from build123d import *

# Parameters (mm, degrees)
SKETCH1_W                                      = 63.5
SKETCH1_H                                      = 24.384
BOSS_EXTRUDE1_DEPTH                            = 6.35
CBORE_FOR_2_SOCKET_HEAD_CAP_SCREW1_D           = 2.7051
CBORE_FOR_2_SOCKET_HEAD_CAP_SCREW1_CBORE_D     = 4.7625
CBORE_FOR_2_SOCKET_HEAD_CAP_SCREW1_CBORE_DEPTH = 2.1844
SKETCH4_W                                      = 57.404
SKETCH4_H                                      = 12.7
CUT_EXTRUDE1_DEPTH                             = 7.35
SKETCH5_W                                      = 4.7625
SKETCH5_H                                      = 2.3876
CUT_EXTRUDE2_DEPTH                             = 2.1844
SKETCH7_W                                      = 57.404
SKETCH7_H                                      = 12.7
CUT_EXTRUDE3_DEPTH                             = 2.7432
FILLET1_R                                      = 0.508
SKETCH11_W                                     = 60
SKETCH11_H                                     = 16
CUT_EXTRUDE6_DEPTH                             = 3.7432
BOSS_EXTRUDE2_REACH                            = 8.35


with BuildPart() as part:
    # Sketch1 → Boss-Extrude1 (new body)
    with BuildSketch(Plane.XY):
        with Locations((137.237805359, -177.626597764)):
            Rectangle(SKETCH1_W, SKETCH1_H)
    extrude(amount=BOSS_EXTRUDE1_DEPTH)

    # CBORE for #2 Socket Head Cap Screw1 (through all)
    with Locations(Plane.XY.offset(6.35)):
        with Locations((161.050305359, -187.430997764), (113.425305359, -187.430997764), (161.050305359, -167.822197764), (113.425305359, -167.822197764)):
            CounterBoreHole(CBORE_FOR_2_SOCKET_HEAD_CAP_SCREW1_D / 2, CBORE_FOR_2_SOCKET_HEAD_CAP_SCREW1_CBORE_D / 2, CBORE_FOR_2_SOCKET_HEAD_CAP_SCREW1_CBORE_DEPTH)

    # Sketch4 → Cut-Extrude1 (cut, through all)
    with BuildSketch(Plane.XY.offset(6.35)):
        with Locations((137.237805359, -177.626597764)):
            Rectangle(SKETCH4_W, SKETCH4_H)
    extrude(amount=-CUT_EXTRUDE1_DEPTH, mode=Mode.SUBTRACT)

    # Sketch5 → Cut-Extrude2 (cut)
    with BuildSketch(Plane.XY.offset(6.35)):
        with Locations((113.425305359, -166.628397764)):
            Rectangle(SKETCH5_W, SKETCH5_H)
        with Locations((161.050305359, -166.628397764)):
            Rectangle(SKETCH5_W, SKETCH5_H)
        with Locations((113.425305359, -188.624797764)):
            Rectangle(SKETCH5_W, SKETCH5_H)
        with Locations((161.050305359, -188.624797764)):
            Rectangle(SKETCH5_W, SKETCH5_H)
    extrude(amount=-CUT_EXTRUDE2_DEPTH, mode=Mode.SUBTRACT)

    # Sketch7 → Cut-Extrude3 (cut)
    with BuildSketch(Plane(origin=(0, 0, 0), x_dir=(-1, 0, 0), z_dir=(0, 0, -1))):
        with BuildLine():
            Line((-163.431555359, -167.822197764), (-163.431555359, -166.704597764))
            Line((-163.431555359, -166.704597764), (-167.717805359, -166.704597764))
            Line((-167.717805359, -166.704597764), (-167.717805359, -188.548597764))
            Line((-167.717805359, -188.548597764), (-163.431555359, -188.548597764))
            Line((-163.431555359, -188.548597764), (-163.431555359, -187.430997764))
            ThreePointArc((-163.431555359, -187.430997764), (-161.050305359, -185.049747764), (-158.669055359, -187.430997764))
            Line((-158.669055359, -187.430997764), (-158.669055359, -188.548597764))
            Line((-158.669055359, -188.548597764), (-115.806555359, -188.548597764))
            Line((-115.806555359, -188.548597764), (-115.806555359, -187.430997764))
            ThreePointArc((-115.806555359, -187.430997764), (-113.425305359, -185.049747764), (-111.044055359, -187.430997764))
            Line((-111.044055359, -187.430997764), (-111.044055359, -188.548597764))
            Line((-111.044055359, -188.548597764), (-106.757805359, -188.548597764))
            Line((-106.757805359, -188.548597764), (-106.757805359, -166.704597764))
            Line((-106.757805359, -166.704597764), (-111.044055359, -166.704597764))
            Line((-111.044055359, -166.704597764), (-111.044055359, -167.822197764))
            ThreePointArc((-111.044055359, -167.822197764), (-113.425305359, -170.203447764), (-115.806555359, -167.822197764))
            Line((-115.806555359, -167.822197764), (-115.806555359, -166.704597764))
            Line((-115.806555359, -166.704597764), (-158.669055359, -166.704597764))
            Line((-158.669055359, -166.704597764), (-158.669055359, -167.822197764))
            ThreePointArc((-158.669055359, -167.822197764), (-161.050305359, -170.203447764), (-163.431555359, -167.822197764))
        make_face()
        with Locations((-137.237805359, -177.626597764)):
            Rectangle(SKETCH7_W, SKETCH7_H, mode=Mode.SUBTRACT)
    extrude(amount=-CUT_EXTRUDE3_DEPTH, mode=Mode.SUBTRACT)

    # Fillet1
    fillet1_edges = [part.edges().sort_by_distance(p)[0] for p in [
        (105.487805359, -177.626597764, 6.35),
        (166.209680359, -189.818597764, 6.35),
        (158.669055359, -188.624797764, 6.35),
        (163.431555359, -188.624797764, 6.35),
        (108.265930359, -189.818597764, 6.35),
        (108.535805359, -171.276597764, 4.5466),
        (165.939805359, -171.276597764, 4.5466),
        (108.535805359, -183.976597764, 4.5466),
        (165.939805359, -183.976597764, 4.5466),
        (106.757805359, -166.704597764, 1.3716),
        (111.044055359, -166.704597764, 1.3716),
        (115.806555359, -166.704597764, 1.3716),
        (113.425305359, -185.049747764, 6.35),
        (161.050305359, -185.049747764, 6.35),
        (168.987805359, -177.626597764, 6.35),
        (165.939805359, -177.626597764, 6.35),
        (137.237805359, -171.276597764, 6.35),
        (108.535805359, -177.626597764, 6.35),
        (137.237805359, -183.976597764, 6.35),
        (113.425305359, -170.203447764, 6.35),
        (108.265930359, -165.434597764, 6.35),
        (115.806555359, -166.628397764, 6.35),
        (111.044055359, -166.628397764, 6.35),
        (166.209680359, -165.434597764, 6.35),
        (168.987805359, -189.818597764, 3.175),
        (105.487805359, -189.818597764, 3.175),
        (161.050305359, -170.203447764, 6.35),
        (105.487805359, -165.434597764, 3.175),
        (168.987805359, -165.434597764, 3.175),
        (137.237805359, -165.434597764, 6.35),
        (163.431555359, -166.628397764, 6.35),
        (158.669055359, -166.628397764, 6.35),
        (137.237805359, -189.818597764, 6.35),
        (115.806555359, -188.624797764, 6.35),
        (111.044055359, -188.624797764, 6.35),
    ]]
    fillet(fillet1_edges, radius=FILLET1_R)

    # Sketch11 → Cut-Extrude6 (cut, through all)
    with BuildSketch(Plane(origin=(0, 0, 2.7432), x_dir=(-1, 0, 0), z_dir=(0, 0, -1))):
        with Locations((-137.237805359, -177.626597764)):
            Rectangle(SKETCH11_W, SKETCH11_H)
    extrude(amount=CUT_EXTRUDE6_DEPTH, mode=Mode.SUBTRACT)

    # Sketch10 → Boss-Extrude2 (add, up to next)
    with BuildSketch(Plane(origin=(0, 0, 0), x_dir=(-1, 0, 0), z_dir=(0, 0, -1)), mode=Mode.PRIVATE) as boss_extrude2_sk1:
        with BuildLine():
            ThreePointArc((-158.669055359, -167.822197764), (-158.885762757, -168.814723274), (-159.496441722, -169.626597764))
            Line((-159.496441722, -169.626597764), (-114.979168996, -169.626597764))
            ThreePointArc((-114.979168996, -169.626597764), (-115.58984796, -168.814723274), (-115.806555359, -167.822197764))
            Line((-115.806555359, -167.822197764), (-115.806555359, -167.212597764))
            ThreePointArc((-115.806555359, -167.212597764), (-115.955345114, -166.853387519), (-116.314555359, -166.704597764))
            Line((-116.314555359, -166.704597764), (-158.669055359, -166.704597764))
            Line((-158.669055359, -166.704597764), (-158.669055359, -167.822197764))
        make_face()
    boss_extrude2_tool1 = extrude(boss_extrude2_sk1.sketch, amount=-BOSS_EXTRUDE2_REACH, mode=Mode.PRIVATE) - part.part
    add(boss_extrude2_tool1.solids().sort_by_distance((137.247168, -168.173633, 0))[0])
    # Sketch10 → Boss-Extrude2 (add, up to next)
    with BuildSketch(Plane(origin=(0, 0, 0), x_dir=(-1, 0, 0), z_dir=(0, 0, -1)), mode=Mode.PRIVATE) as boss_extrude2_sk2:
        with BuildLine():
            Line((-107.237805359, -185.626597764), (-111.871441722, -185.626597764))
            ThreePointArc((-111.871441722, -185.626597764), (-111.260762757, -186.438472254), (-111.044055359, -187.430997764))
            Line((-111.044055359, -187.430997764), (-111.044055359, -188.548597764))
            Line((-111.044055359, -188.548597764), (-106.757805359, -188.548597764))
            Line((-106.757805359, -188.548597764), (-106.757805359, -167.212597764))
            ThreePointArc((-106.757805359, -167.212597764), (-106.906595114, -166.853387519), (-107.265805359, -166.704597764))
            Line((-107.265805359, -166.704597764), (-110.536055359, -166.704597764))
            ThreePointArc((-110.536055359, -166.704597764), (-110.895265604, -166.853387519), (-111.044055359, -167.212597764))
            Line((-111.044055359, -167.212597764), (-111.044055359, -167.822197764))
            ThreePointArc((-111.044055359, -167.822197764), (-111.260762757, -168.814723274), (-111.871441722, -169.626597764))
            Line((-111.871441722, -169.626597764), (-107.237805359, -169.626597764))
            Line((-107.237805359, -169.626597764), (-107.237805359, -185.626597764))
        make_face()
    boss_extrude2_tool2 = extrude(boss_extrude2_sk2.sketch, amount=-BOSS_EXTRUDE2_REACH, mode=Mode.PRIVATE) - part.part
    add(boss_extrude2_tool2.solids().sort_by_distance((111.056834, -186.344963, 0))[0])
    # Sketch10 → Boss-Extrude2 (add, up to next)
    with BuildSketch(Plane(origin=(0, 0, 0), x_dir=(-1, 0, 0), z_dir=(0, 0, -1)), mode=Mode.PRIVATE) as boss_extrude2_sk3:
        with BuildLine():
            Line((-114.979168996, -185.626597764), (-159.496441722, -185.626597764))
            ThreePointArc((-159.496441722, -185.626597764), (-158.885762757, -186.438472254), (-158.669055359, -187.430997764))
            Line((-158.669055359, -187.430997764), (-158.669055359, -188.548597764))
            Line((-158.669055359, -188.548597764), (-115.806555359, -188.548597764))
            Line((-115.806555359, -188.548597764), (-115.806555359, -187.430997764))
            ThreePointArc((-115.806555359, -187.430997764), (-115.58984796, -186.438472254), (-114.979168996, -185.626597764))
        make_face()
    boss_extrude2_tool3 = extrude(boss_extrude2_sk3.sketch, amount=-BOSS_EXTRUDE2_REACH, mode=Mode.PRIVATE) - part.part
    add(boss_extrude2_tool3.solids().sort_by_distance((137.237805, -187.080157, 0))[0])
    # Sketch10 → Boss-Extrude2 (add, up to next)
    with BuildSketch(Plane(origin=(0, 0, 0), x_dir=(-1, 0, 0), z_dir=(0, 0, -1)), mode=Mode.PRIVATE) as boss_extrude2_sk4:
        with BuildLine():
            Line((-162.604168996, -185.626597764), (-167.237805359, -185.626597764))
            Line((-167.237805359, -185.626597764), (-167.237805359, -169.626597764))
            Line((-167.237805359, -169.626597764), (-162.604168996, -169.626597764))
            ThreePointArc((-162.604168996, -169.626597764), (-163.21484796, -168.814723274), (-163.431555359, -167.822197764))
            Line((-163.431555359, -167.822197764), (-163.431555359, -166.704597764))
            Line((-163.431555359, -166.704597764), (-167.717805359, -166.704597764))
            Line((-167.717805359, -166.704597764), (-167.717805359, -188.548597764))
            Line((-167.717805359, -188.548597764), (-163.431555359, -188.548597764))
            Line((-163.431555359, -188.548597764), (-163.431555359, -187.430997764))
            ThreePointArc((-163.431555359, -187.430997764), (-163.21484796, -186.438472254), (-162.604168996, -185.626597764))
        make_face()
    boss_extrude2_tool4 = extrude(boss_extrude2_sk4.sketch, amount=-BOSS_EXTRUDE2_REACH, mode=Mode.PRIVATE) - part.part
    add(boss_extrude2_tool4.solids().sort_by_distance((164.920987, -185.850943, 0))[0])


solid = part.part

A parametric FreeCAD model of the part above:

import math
import FreeCAD as App
import Part
import Sketcher
Q = App.Units.Quantity


def edges_at(feature, points):
    """Names of the edges that pass closest to the given points."""
    edges = feature.Shape.Edges
    near = lambda p: min(range(len(edges)), key=lambda i: edges[i].distToShape(Part.Vertex(*p))[0])
    return sorted({f"Edge{near(p) + 1}" for p in points})

doc = App.newDocument("Part")
body = doc.addObject("PartDesign::Body", "Body")

# Sketch on XY plane
sketch1 = doc.addObject("Sketcher::SketchObject", "Sketch")
body.addObject(sketch1)
sketch1.AttachmentSupport = (doc.XY_Plane, [""])
sketch1.MapMode = "FlatFace"
sketch1.addGeometry(Part.LineSegment(App.Vector(105.487805, -165.434598, 0), App.Vector(105.487805, -189.818598, 0)), False)
sketch1.addGeometry(Part.LineSegment(App.Vector(105.487805, -189.818598, 0), App.Vector(168.987805, -189.818598, 0)), False)
sketch1.addGeometry(Part.LineSegment(App.Vector(168.987805, -189.818598, 0), App.Vector(168.987805, -165.434598, 0)), False)
sketch1.addGeometry(Part.LineSegment(App.Vector(168.987805, -165.434598, 0), App.Vector(105.487805, -165.434598, 0)), False)
sketch1.addConstraint(Sketcher.Constraint("Coincident", 0, 2, 1, 1))
sketch1.addConstraint(Sketcher.Constraint("Coincident", 1, 2, 2, 1))
sketch1.addConstraint(Sketcher.Constraint("Coincident", 2, 2, 3, 1))
sketch1.addConstraint(Sketcher.Constraint("Coincident", 3, 2, 0, 1))
sketch1.addConstraint(Sketcher.Constraint("Vertical", 0))
sketch1.addConstraint(Sketcher.Constraint("Horizontal", 1))
sketch1.addConstraint(Sketcher.Constraint("Vertical", 2))
sketch1.addConstraint(Sketcher.Constraint("Horizontal", 3))
sketch1.addConstraint(Sketcher.Constraint("DistanceX", 1, 1, 1, 2, Q("2.5 in")))
sketch1.addConstraint(Sketcher.Constraint("DistanceY", 0, 2, 0, 1, Q("0.96 in")))
sketch1.addConstraint(Sketcher.Constraint("DistanceX", -1, 1, 0, 2, Q("105.487805 mm")))
sketch1.addConstraint(Sketcher.Constraint("DistanceY", 0, 2, -1, 1, Q("189.818598 mm")))
pad1 = doc.addObject("PartDesign::Pad", "Pad")
body.addObject(pad1)
pad1.Profile = sketch1
pad1.Length = Q("0.25 in")

# Sketch on XY plane
sketch2 = doc.addObject("Sketcher::SketchObject", "Sketch001")
body.addObject(sketch2)
sketch2.AttachmentSupport = (doc.XY_Plane, [""])
sketch2.MapMode = "FlatFace"
sketch2.AttachmentOffset = App.Placement(App.Vector(0, 0, 0.25 * 25.4), App.Rotation())
sketch2.addGeometry(Part.Circle(App.Vector(161.050305, -187.430998, 0), App.Vector(0, 0, 1), 1.35255), False)
sketch2.addGeometry(Part.Circle(App.Vector(113.425305, -187.430998, 0), App.Vector(0, 0, 1), 1.35255), False)
sketch2.addGeometry(Part.Circle(App.Vector(161.050305, -167.822198, 0), App.Vector(0, 0, 1), 1.35255), False)
sketch2.addGeometry(Part.Circle(App.Vector(113.425305, -167.822198, 0), App.Vector(0, 0, 1), 1.35255), False)
sketch2.addConstraint(Sketcher.Constraint("Equal", 0, 1))
sketch2.addConstraint(Sketcher.Constraint("Equal", 1, 2))
sketch2.addConstraint(Sketcher.Constraint("Equal", 2, 3))
sketch2.addConstraint(Sketcher.Constraint("Horizontal", 0, 3, 1, 3))
sketch2.addConstraint(Sketcher.Constraint("Horizontal", 2, 3, 3, 3))
sketch2.addConstraint(Sketcher.Constraint("Vertical", 0, 3, 2, 3))
sketch2.addConstraint(Sketcher.Constraint("Vertical", 1, 3, 3, 3))
sketch2.addConstraint(Sketcher.Constraint("Diameter", 0, Q("0.1065 in")))
sketch2.addConstraint(Sketcher.Constraint("DistanceX", 1, 3, 0, 3, Q("1.875 in")))
sketch2.addConstraint(Sketcher.Constraint("DistanceY", 0, 3, 2, 3, Q("0.772 in")))
sketch2.addConstraint(Sketcher.Constraint("DistanceX", -1, 1, 0, 3, Q("161.050305 mm")))
sketch2.addConstraint(Sketcher.Constraint("DistanceY", 0, 3, -1, 1, Q("187.430998 mm")))
doc.recompute()
hole = doc.addObject("PartDesign::Hole", "Hole")
body.addObject(hole)
hole.Profile = sketch2
hole.ThreadType = "None"
hole.Diameter = Q("0.1065 in")
hole.DepthType = "ThroughAll"
hole.HoleCutType = "Counterbore"
hole.HoleCutDiameter = Q("0.1875 in")
hole.HoleCutDepth = Q("0.086 in")

# Sketch on XY plane
sketch3 = doc.addObject("Sketcher::SketchObject", "Sketch002")
body.addObject(sketch3)
sketch3.AttachmentSupport = (doc.XY_Plane, [""])
sketch3.MapMode = "FlatFace"
sketch3.AttachmentOffset = App.Placement(App.Vector(0, 0, 0.25 * 25.4), App.Rotation())
sketch3.addGeometry(Part.LineSegment(App.Vector(108.535805, -171.276598, 0), App.Vector(108.535805, -183.976598, 0)), False)
sketch3.addGeometry(Part.LineSegment(App.Vector(108.535805, -183.976598, 0), App.Vector(165.939805, -183.976598, 0)), False)
sketch3.addGeometry(Part.LineSegment(App.Vector(165.939805, -183.976598, 0), App.Vector(165.939805, -171.276598, 0)), False)
sketch3.addGeometry(Part.LineSegment(App.Vector(165.939805, -171.276598, 0), App.Vector(108.535805, -171.276598, 0)), False)
sketch3.addConstraint(Sketcher.Constraint("Coincident", 0, 2, 1, 1))
sketch3.addConstraint(Sketcher.Constraint("Coincident", 1, 2, 2, 1))
sketch3.addConstraint(Sketcher.Constraint("Coincident", 2, 2, 3, 1))
sketch3.addConstraint(Sketcher.Constraint("Coincident", 3, 2, 0, 1))
sketch3.addConstraint(Sketcher.Constraint("Vertical", 0))
sketch3.addConstraint(Sketcher.Constraint("Horizontal", 1))
sketch3.addConstraint(Sketcher.Constraint("Vertical", 2))
sketch3.addConstraint(Sketcher.Constraint("Horizontal", 3))
sketch3.addConstraint(Sketcher.Constraint("DistanceY", 0, 2, 0, 1, Q("0.5 in")))
sketch3.addConstraint(Sketcher.Constraint("DistanceX", 1, 1, 1, 2, Q("2.26 in")))
sketch3.addConstraint(Sketcher.Constraint("DistanceX", -1, 1, 0, 2, Q("108.535805 mm")))
sketch3.addConstraint(Sketcher.Constraint("DistanceY", 0, 2, -1, 1, Q("183.976598 mm")))
pocket1 = doc.addObject("PartDesign::Pocket", "Pocket")
body.addObject(pocket1)
pocket1.Profile = sketch3
pocket1.Type = "ThroughAll"

# Sketch on XY plane
sketch4 = doc.addObject("Sketcher::SketchObject", "Sketch003")
body.addObject(sketch4)
sketch4.AttachmentSupport = (doc.XY_Plane, [""])
sketch4.MapMode = "FlatFace"
sketch4.AttachmentOffset = App.Placement(App.Vector(0, 0, 0.25 * 25.4), App.Rotation())
sketch4.addGeometry(Part.LineSegment(App.Vector(111.044055, -165.434598, 0), App.Vector(111.044055, -167.822198, 0)), False)
sketch4.addGeometry(Part.LineSegment(App.Vector(111.044055, -167.822198, 0), App.Vector(115.806555, -167.822198, 0)), False)
sketch4.addGeometry(Part.LineSegment(App.Vector(115.806555, -167.822198, 0), App.Vector(115.806555, -165.434598, 0)), False)
sketch4.addGeometry(Part.LineSegment(App.Vector(115.806555, -165.434598, 0), App.Vector(111.044055, -165.434598, 0)), False)
sketch4.addGeometry(Part.LineSegment(App.Vector(158.669055, -165.434598, 0), App.Vector(158.669055, -167.822198, 0)), False)
sketch4.addGeometry(Part.LineSegment(App.Vector(158.669055, -167.822198, 0), App.Vector(163.431555, -167.822198, 0)), False)
sketch4.addGeometry(Part.LineSegment(App.Vector(163.431555, -167.822198, 0), App.Vector(163.431555, -165.434598, 0)), False)
sketch4.addGeometry(Part.LineSegment(App.Vector(163.431555, -165.434598, 0), App.Vector(158.669055, -165.434598, 0)), False)
sketch4.addGeometry(Part.LineSegment(App.Vector(111.044055, -187.430998, 0), App.Vector(111.044055, -189.818598, 0)), False)
sketch4.addGeometry(Part.LineSegment(App.Vector(111.044055, -189.818598, 0), App.Vector(115.806555, -189.818598, 0)), False)
sketch4.addGeometry(Part.LineSegment(App.Vector(115.806555, -189.818598, 0), App.Vector(115.806555, -187.430998, 0)), False)
sketch4.addGeometry(Part.LineSegment(App.Vector(115.806555, -187.430998, 0), App.Vector(111.044055, -187.430998, 0)), False)
sketch4.addGeometry(Part.LineSegment(App.Vector(158.669055, -187.430998, 0), App.Vector(158.669055, -189.818598, 0)), False)
sketch4.addGeometry(Part.LineSegment(App.Vector(158.669055, -189.818598, 0), App.Vector(163.431555, -189.818598, 0)), False)
sketch4.addGeometry(Part.LineSegment(App.Vector(163.431555, -189.818598, 0), App.Vector(163.431555, -187.430998, 0)), False)
sketch4.addGeometry(Part.LineSegment(App.Vector(163.431555, -187.430998, 0), App.Vector(158.669055, -187.430998, 0)), False)
sketch4.addConstraint(Sketcher.Constraint("Coincident", 0, 2, 1, 1))
sketch4.addConstraint(Sketcher.Constraint("Coincident", 1, 2, 2, 1))
sketch4.addConstraint(Sketcher.Constraint("Coincident", 2, 2, 3, 1))
sketch4.addConstraint(Sketcher.Constraint("Coincident", 3, 2, 0, 1))
sketch4.addConstraint(Sketcher.Constraint("Coincident", 4, 2, 5, 1))
sketch4.addConstraint(Sketcher.Constraint("Coincident", 5, 2, 6, 1))
sketch4.addConstraint(Sketcher.Constraint("Coincident", 6, 2, 7, 1))
sketch4.addConstraint(Sketcher.Constraint("Coincident", 7, 2, 4, 1))
sketch4.addConstraint(Sketcher.Constraint("Coincident", 8, 2, 9, 1))
sketch4.addConstraint(Sketcher.Constraint("Coincident", 9, 2, 10, 1))
sketch4.addConstraint(Sketcher.Constraint("Coincident", 10, 2, 11, 1))
sketch4.addConstraint(Sketcher.Constraint("Coincident", 11, 2, 8, 1))
sketch4.addConstraint(Sketcher.Constraint("Coincident", 12, 2, 13, 1))
sketch4.addConstraint(Sketcher.Constraint("Coincident", 13, 2, 14, 1))
sketch4.addConstraint(Sketcher.Constraint("Coincident", 14, 2, 15, 1))
sketch4.addConstraint(Sketcher.Constraint("Coincident", 15, 2, 12, 1))
sketch4.addConstraint(Sketcher.Constraint("Vertical", 0))
sketch4.addConstraint(Sketcher.Constraint("Horizontal", 1))
sketch4.addConstraint(Sketcher.Constraint("Vertical", 2))
sketch4.addConstraint(Sketcher.Constraint("Horizontal", 3))
sketch4.addConstraint(Sketcher.Constraint("Vertical", 4))
sketch4.addConstraint(Sketcher.Constraint("Horizontal", 5))
sketch4.addConstraint(Sketcher.Constraint("Vertical", 6))
sketch4.addConstraint(Sketcher.Constraint("Horizontal", 7))
sketch4.addConstraint(Sketcher.Constraint("Vertical", 8))
sketch4.addConstraint(Sketcher.Constraint("Horizontal", 9))
sketch4.addConstraint(Sketcher.Constraint("Vertical", 10))
sketch4.addConstraint(Sketcher.Constraint("Horizontal", 11))
sketch4.addConstraint(Sketcher.Constraint("Vertical", 12))
sketch4.addConstraint(Sketcher.Constraint("Horizontal", 13))
sketch4.addConstraint(Sketcher.Constraint("Vertical", 14))
sketch4.addConstraint(Sketcher.Constraint("Horizontal", 15))
sketch4.addConstraint(Sketcher.Constraint("Horizontal", 1, 2, 4, 2))
sketch4.addConstraint(Sketcher.Constraint("Horizontal", 3, 2, 6, 2))
sketch4.addConstraint(Sketcher.Constraint("Horizontal", 9, 2, 12, 2))
sketch4.addConstraint(Sketcher.Constraint("Horizontal", 11, 2, 14, 2))
sketch4.addConstraint(Sketcher.Constraint("Vertical", 3, 2, 8, 2))
sketch4.addConstraint(Sketcher.Constraint("Vertical", 2, 2, 9, 2))
sketch4.addConstraint(Sketcher.Constraint("Vertical", 7, 2, 12, 2))
sketch4.addConstraint(Sketcher.Constraint("Vertical", 6, 2, 13, 2))
sketch4.addConstraint(Sketcher.Constraint("Equal", 3, 5))
sketch4.addConstraint(Sketcher.Constraint("Equal", 6, 8))
sketch4.addConstraint(Sketcher.Constraint("DistanceX", 1, 1, 1, 2, Q("0.1875 in")))
sketch4.addConstraint(Sketcher.Constraint("DistanceY", 0, 2, 0, 1, Q("0.094 in")))
sketch4.addConstraint(Sketcher.Constraint("DistanceY", 8, 2, 3, 2, Q("0.96 in")))
sketch4.addConstraint(Sketcher.Constraint("DistanceX", 1, 2, 4, 2, Q("1.6875 in")))
sketch4.addConstraint(Sketcher.Constraint("DistanceX", -1, 1, 0, 2, Q("111.044055 mm")))
sketch4.addConstraint(Sketcher.Constraint("DistanceY", 0, 2, -1, 1, Q("167.822198 mm")))
pocket2 = doc.addObject("PartDesign::Pocket", "Pocket001")
body.addObject(pocket2)
pocket2.Profile = sketch4
pocket2.Length = Q("0.086 in")

# Sketch on XY plane
sketch5 = doc.addObject("Sketcher::SketchObject", "Sketch004")
body.addObject(sketch5)
sketch5.AttachmentSupport = (doc.XY_Plane, [""])
sketch5.MapMode = "FlatFace"
sketch5.addGeometry(Part.LineSegment(App.Vector(163.431555, -167.822198, 0), App.Vector(163.431555, -166.704598, 0)), False)
sketch5.addGeometry(Part.LineSegment(App.Vector(163.431555, -166.704598, 0), App.Vector(167.717805, -166.704598, 0)), False)
sketch5.addGeometry(Part.LineSegment(App.Vector(167.717805, -166.704598, 0), App.Vector(167.717805, -188.548598, 0)), False)
sketch5.addGeometry(Part.LineSegment(App.Vector(167.717805, -188.548598, 0), App.Vector(163.431555, -188.548598, 0)), False)
sketch5.addGeometry(Part.LineSegment(App.Vector(163.431555, -188.548598, 0), App.Vector(163.431555, -187.430998, 0)), False)
sketch5.addGeometry(Part.ArcOfCircle(Part.Circle(App.Vector(161.050305, -187.430998, 0), App.Vector(0, 0, 1), 2.38125), math.radians(0), math.radians(180)), False)
sketch5.addGeometry(Part.LineSegment(App.Vector(158.669055, -187.430998, 0), App.Vector(158.669055, -188.548598, 0)), False)
sketch5.addGeometry(Part.LineSegment(App.Vector(158.669055, -188.548598, 0), App.Vector(115.806555, -188.548598, 0)), False)
sketch5.addGeometry(Part.LineSegment(App.Vector(115.806555, -188.548598, 0), App.Vector(115.806555, -187.430998, 0)), False)
sketch5.addGeometry(Part.ArcOfCircle(Part.Circle(App.Vector(113.425305, -187.430998, 0), App.Vector(0, 0, 1), 2.38125), math.radians(0), math.radians(180)), False)
sketch5.addGeometry(Part.LineSegment(App.Vector(111.044055, -187.430998, 0), App.Vector(111.044055, -188.548598, 0)), False)
sketch5.addGeometry(Part.LineSegment(App.Vector(111.044055, -188.548598, 0), App.Vector(106.757805, -188.548598, 0)), False)
sketch5.addGeometry(Part.LineSegment(App.Vector(106.757805, -188.548598, 0), App.Vector(106.757805, -166.704598, 0)), False)
sketch5.addGeometry(Part.LineSegment(App.Vector(106.757805, -166.704598, 0), App.Vector(111.044055, -166.704598, 0)), False)
sketch5.addGeometry(Part.LineSegment(App.Vector(111.044055, -166.704598, 0), App.Vector(111.044055, -167.822198, 0)), False)
sketch5.addGeometry(Part.ArcOfCircle(Part.Circle(App.Vector(113.425305, -167.822198, 0), App.Vector(0, 0, 1), 2.38125), math.radians(180), math.radians(360)), False)
sketch5.addGeometry(Part.LineSegment(App.Vector(115.806555, -167.822198, 0), App.Vector(115.806555, -166.704598, 0)), False)
sketch5.addGeometry(Part.LineSegment(App.Vector(115.806555, -166.704598, 0), App.Vector(158.669055, -166.704598, 0)), False)
sketch5.addGeometry(Part.LineSegment(App.Vector(158.669055, -166.704598, 0), App.Vector(158.669055, -167.822198, 0)), False)
sketch5.addGeometry(Part.ArcOfCircle(Part.Circle(App.Vector(161.050305, -167.822198, 0), App.Vector(0, 0, 1), 2.38125), math.radians(180), math.radians(360)), False)
sketch5.addGeometry(Part.LineSegment(App.Vector(108.535805, -183.976598, 0), App.Vector(165.939805, -183.976598, 0)), False)
sketch5.addGeometry(Part.LineSegment(App.Vector(165.939805, -183.976598, 0), App.Vector(165.939805, -171.276598, 0)), False)
sketch5.addGeometry(Part.LineSegment(App.Vector(165.939805, -171.276598, 0), App.Vector(108.535805, -171.276598, 0)), False)
sketch5.addGeometry(Part.LineSegment(App.Vector(108.535805, -171.276598, 0), App.Vector(108.535805, -183.976598, 0)), False)
sketch5.addConstraint(Sketcher.Constraint("Coincident", 0, 2, 1, 1))
sketch5.addConstraint(Sketcher.Constraint("Coincident", 1, 2, 2, 1))
sketch5.addConstraint(Sketcher.Constraint("Coincident", 2, 2, 3, 1))
sketch5.addConstraint(Sketcher.Constraint("Coincident", 3, 2, 4, 1))
sketch5.addConstraint(Sketcher.Constraint("Tangent", 4, 2, 5, 1))
sketch5.addConstraint(Sketcher.Constraint("Tangent", 5, 2, 6, 1))
sketch5.addConstraint(Sketcher.Constraint("Coincident", 6, 2, 7, 1))
sketch5.addConstraint(Sketcher.Constraint("Coincident", 7, 2, 8, 1))
sketch5.addConstraint(Sketcher.Constraint("Tangent", 8, 2, 9, 1))
sketch5.addConstraint(Sketcher.Constraint("Tangent", 9, 2, 10, 1))
sketch5.addConstraint(Sketcher.Constraint("Coincident", 10, 2, 11, 1))
sketch5.addConstraint(Sketcher.Constraint("Coincident", 11, 2, 12, 1))
sketch5.addConstraint(Sketcher.Constraint("Coincident", 12, 2, 13, 1))
sketch5.addConstraint(Sketcher.Constraint("Coincident", 13, 2, 14, 1))
sketch5.addConstraint(Sketcher.Constraint("Tangent", 14, 2, 15, 1))
sketch5.addConstraint(Sketcher.Constraint("Tangent", 15, 2, 16, 1))
sketch5.addConstraint(Sketcher.Constraint("Coincident", 16, 2, 17, 1))
sketch5.addConstraint(Sketcher.Constraint("Coincident", 17, 2, 18, 1))
sketch5.addConstraint(Sketcher.Constraint("Tangent", 18, 2, 19, 1))
sketch5.addConstraint(Sketcher.Constraint("Tangent", 19, 2, 0, 1))
sketch5.addConstraint(Sketcher.Constraint("Coincident", 20, 2, 21, 1))
sketch5.addConstraint(Sketcher.Constraint("Coincident", 21, 2, 22, 1))
sketch5.addConstraint(Sketcher.Constraint("Coincident", 22, 2, 23, 1))
sketch5.addConstraint(Sketcher.Constraint("Coincident", 23, 2, 20, 1))
sketch5.addConstraint(Sketcher.Constraint("Vertical", 0))
sketch5.addConstraint(Sketcher.Constraint("Horizontal", 1))
sketch5.addConstraint(Sketcher.Constraint("Vertical", 2))
sketch5.addConstraint(Sketcher.Constraint("Horizontal", 3))
sketch5.addConstraint(Sketcher.Constraint("Vertical", 4))
sketch5.addConstraint(Sketcher.Constraint("Vertical", 6))
sketch5.addConstraint(Sketcher.Constraint("Horizontal", 7))
sketch5.addConstraint(Sketcher.Constraint("Vertical", 8))
sketch5.addConstraint(Sketcher.Constraint("Vertical", 10))
sketch5.addConstraint(Sketcher.Constraint("Horizontal", 11))
sketch5.addConstraint(Sketcher.Constraint("Vertical", 12))
sketch5.addConstraint(Sketcher.Constraint("Horizontal", 13))
sketch5.addConstraint(Sketcher.Constraint("Vertical", 14))
sketch5.addConstraint(Sketcher.Constraint("Vertical", 16))
sketch5.addConstraint(Sketcher.Constraint("Horizontal", 17))
sketch5.addConstraint(Sketcher.Constraint("Vertical", 18))
sketch5.addConstraint(Sketcher.Constraint("Horizontal", 20))
sketch5.addConstraint(Sketcher.Constraint("Vertical", 21))
sketch5.addConstraint(Sketcher.Constraint("Horizontal", 22))
sketch5.addConstraint(Sketcher.Constraint("Vertical", 23))
sketch5.addConstraint(Sketcher.Constraint("Equal", 5, 9))
sketch5.addConstraint(Sketcher.Constraint("Equal", 9, 15))
sketch5.addConstraint(Sketcher.Constraint("Equal", 15, 19))
sketch5.addConstraint(Sketcher.Constraint("Horizontal", 5, 3, 9, 3))
sketch5.addConstraint(Sketcher.Constraint("Horizontal", 15, 3, 19, 3))
sketch5.addConstraint(Sketcher.Constraint("Horizontal", 3, 2, 6, 2))
sketch5.addConstraint(Sketcher.Constraint("Horizontal", 7, 2, 10, 2))
sketch5.addConstraint(Sketcher.Constraint("Horizontal", 1, 2, 12, 2))
sketch5.addConstraint(Sketcher.Constraint("Horizontal", 13, 2, 16, 2))
sketch5.addConstraint(Sketcher.Constraint("Vertical", 9, 3, 15, 3))
sketch5.addConstraint(Sketcher.Constraint("Vertical", 5, 3, 19, 3))
sketch5.addConstraint(Sketcher.Constraint("Equal", 3, 11))
sketch5.addConstraint(Sketcher.Constraint("Equal", 0, 4))
sketch5.addConstraint(Sketcher.Constraint("DistanceY", 21, 1, 21, 2, Q("0.5 in")))
sketch5.addConstraint(Sketcher.Constraint("Radius", 5, Q("0.09375 in")))
sketch5.addConstraint(Sketcher.Constraint("DistanceX", 20, 1, 20, 2, Q("2.26 in")))
sketch5.addConstraint(Sketcher.Constraint("DistanceY", 2, 2, 2, 1, Q("0.86 in")))
sketch5.addConstraint(Sketcher.Constraint("DistanceX", 7, 2, 7, 1, Q("1.6875 in")))
sketch5.addConstraint(Sketcher.Constraint("DistanceY", 0, 1, 0, 2, Q("0.044 in")))
sketch5.addConstraint(Sketcher.Constraint("DistanceX", 20, 2, 2, 2, Q("0.07 in")))
sketch5.addConstraint(Sketcher.Constraint("DistanceY", 2, 2, 20, 2, Q("0.18 in")))
sketch5.addConstraint(Sketcher.Constraint("DistanceX", 12, 2, 22, 2, Q("0.07 in")))
sketch5.addConstraint(Sketcher.Constraint("DistanceX", -1, 1, 5, 3, Q("161.050305 mm")))
sketch5.addConstraint(Sketcher.Constraint("DistanceY", 5, 3, -1, 1, Q("187.430998 mm")))
pocket3 = doc.addObject("PartDesign::Pocket", "Pocket002")
body.addObject(pocket3)
pocket3.Profile = sketch5
pocket3.Length = Q("0.108 in")
pocket3.Reversed = True
doc.recompute()

fillet = doc.addObject("PartDesign::Fillet", "Fillet")
body.addObject(fillet)
fillet.Base = (pocket3, edges_at(pocket3, [
    (105.488, -177.627, 6.35),
    (166.21, -189.819, 6.35),
    (158.669, -188.625, 6.35),
    (163.432, -188.625, 6.35),
    (108.266, -189.819, 6.35),
    (108.536, -171.277, 4.547),
    (165.94, -171.277, 4.547),
    (108.536, -183.977, 4.547),
    (165.94, -183.977, 4.547),
    (106.758, -166.705, 1.372),
    (111.044, -166.705, 1.372),
    (115.807, -166.705, 1.372),
    (113.425, -185.05, 6.35),
    (161.05, -185.05, 6.35),
    (168.988, -177.627, 6.35),
    (165.94, -177.627, 6.35),
    (137.238, -171.277, 6.35),
    (108.536, -177.627, 6.35),
    (137.238, -183.977, 6.35),
    (113.425, -170.203, 6.35),
    (108.266, -165.435, 6.35),
    (115.807, -166.628, 6.35),
    (111.044, -166.628, 6.35),
    (166.21, -165.435, 6.35),
    (168.988, -189.819, 3.175),
    (105.488, -189.819, 3.175),
    (161.05, -170.203, 6.35),
    (105.488, -165.435, 3.175),
    (168.988, -165.435, 3.175),
    (137.238, -165.435, 6.35),
    (163.432, -166.628, 6.35),
    (158.669, -166.628, 6.35),
    (137.238, -189.819, 6.35),
    (115.807, -188.625, 6.35),
    (111.044, -188.625, 6.35),
]))
fillet.Radius = Q("0.02 in")

# Sketch on XY plane
sketch6 = doc.addObject("Sketcher::SketchObject", "Sketch005")
body.addObject(sketch6)
sketch6.AttachmentSupport = (doc.XY_Plane, [""])
sketch6.MapMode = "FlatFace"
sketch6.AttachmentOffset = App.Placement(App.Vector(0, 0, 0.108 * 25.4), App.Rotation())
sketch6.addGeometry(Part.LineSegment(App.Vector(167.237805, -169.626598, 0), App.Vector(167.237805, -185.626598, 0)), False)
sketch6.addGeometry(Part.LineSegment(App.Vector(167.237805, -185.626598, 0), App.Vector(107.237805, -185.626598, 0)), False)
sketch6.addGeometry(Part.LineSegment(App.Vector(107.237805, -185.626598, 0), App.Vector(107.237805, -169.626598, 0)), False)
sketch6.addGeometry(Part.LineSegment(App.Vector(107.237805, -169.626598, 0), App.Vector(167.237805, -169.626598, 0)), False)
sketch6.addConstraint(Sketcher.Constraint("Coincident", 0, 2, 1, 1))
sketch6.addConstraint(Sketcher.Constraint("Coincident", 1, 2, 2, 1))
sketch6.addConstraint(Sketcher.Constraint("Coincident", 2, 2, 3, 1))
sketch6.addConstraint(Sketcher.Constraint("Coincident", 3, 2, 0, 1))
sketch6.addConstraint(Sketcher.Constraint("Vertical", 0))
sketch6.addConstraint(Sketcher.Constraint("Horizontal", 1))
sketch6.addConstraint(Sketcher.Constraint("Vertical", 2))
sketch6.addConstraint(Sketcher.Constraint("Horizontal", 3))
sketch6.addConstraint(Sketcher.Constraint("DistanceX", 1, 2, 1, 1, Q("60 mm")))
sketch6.addConstraint(Sketcher.Constraint("DistanceY", 0, 2, 0, 1, Q("16 mm")))
sketch6.addConstraint(Sketcher.Constraint("DistanceX", -1, 1, 0, 2, Q("167.237805 mm")))
sketch6.addConstraint(Sketcher.Constraint("DistanceY", 0, 2, -1, 1, Q("185.626598 mm")))
pocket4 = doc.addObject("PartDesign::Pocket", "Pocket003")
body.addObject(pocket4)
pocket4.Profile = sketch6
pocket4.Type = "ThroughAll"

# Sketch on XY plane
sketch7 = doc.addObject("Sketcher::SketchObject", "Sketch006")
body.addObject(sketch7)
sketch7.AttachmentSupport = (doc.XY_Plane, [""])
sketch7.MapMode = "FlatFace"
sketch7.addGeometry(Part.ArcOfCircle(Part.Circle(App.Vector(161.050305, -167.822198, 0), App.Vector(0, 0, 1), 2.38125), math.radians(180), math.radians(229.26653)), False)
sketch7.addGeometry(Part.LineSegment(App.Vector(159.496442, -169.626598, 0), App.Vector(114.979169, -169.626598, 0)), False)
sketch7.addGeometry(Part.ArcOfCircle(Part.Circle(App.Vector(113.425305, -167.822198, 0), App.Vector(0, 0, 1), 2.38125), math.radians(-49.26653), math.radians(0)), False)
sketch7.addGeometry(Part.LineSegment(App.Vector(115.806555, -167.822198, 0), App.Vector(115.806555, -167.212598, 0)), False)
sketch7.addGeometry(Part.ArcOfCircle(Part.Circle(App.Vector(116.314555, -167.212598, 0), App.Vector(0, 0, 1), 0.508), math.radians(90), math.radians(180)), False)
sketch7.addGeometry(Part.LineSegment(App.Vector(116.314555, -166.704598, 0), App.Vector(158.669055, -166.704598, 0)), False)
sketch7.addGeometry(Part.LineSegment(App.Vector(158.669055, -166.704598, 0), App.Vector(158.669055, -167.822198, 0)), False)
sketch7.addConstraint(Sketcher.Constraint("Coincident", 0, 2, 1, 1))
sketch7.addConstraint(Sketcher.Constraint("Coincident", 1, 2, 2, 1))
sketch7.addConstraint(Sketcher.Constraint("Tangent", 2, 2, 3, 1))
sketch7.addConstraint(Sketcher.Constraint("Tangent", 3, 2, 4, 2))
sketch7.addConstraint(Sketcher.Constraint("Tangent", 4, 1, 5, 1))
sketch7.addConstraint(Sketcher.Constraint("Coincident", 5, 2, 6, 1))
sketch7.addConstraint(Sketcher.Constraint("Tangent", 6, 2, 0, 1))
sketch7.addConstraint(Sketcher.Constraint("Horizontal", 1))
sketch7.addConstraint(Sketcher.Constraint("Vertical", 3))
sketch7.addConstraint(Sketcher.Constraint("Horizontal", 5))
sketch7.addConstraint(Sketcher.Constraint("Vertical", 6))
sketch7.addConstraint(Sketcher.Constraint("Equal", 0, 2))
sketch7.addConstraint(Sketcher.Constraint("Horizontal", 0, 3, 2, 3))
sketch7.addConstraint(Sketcher.Constraint("Radius", 4, Q("0.02 in")))
sketch7.addConstraint(Sketcher.Constraint("Radius", 0, Q("0.09375 in")))
sketch7.addConstraint(Sketcher.Constraint("DistanceY", 3, 1, 3, 2, Q("0.024 in")))
sketch7.addConstraint(Sketcher.Constraint("DistanceX", 5, 1, 5, 2, Q("1.6675 in")))
sketch7.addConstraint(Sketcher.Constraint("DistanceY", 0, 2, 0, 3, Q("1.8044 mm")))
sketch7.addConstraint(Sketcher.Constraint("DistanceX", -1, 1, 0, 2, Q("159.496442 mm")))
sketch7.addConstraint(Sketcher.Constraint("DistanceY", 0, 3, -1, 1, Q("167.822198 mm")))
pad2 = doc.addObject("PartDesign::Pad", "Pad001")
body.addObject(pad2)
pad2.Profile = sketch7
pad2.Type = "UpToFirst"

# Sketch on XY plane
sketch8 = doc.addObject("Sketcher::SketchObject", "Sketch007")
body.addObject(sketch8)
sketch8.AttachmentSupport = (doc.XY_Plane, [""])
sketch8.MapMode = "FlatFace"
sketch8.addGeometry(Part.LineSegment(App.Vector(107.237805, -185.626598, 0), App.Vector(111.871442, -185.626598, 0)), False)
sketch8.addGeometry(Part.ArcOfCircle(Part.Circle(App.Vector(113.425305, -187.430998, 0), App.Vector(0, 0, 1), 2.38125), math.radians(130.73347), math.radians(180)), False)
sketch8.addGeometry(Part.LineSegment(App.Vector(111.044055, -187.430998, 0), App.Vector(111.044055, -188.548598, 0)), False)
sketch8.addGeometry(Part.LineSegment(App.Vector(111.044055, -188.548598, 0), App.Vector(106.757805, -188.548598, 0)), False)
sketch8.addGeometry(Part.LineSegment(App.Vector(106.757805, -188.548598, 0), App.Vector(106.757805, -167.212598, 0)), False)
sketch8.addGeometry(Part.ArcOfCircle(Part.Circle(App.Vector(107.265805, -167.212598, 0), App.Vector(0, 0, 1), 0.508), math.radians(90), math.radians(180)), False)
sketch8.addGeometry(Part.LineSegment(App.Vector(107.265805, -166.704598, 0), App.Vector(110.536055, -166.704598, 0)), False)
sketch8.addGeometry(Part.ArcOfCircle(Part.Circle(App.Vector(110.536055, -167.212598, 0), App.Vector(0, 0, 1), 0.508), math.radians(0), math.radians(90)), False)
sketch8.addGeometry(Part.LineSegment(App.Vector(111.044055, -167.212598, 0), App.Vector(111.044055, -167.822198, 0)), False)
sketch8.addGeometry(Part.ArcOfCircle(Part.Circle(App.Vector(113.425305, -167.822198, 0), App.Vector(0, 0, 1), 2.38125), math.radians(180), math.radians(229.26653)), False)
sketch8.addGeometry(Part.LineSegment(App.Vector(111.871442, -169.626598, 0), App.Vector(107.237805, -169.626598, 0)), False)
sketch8.addGeometry(Part.LineSegment(App.Vector(107.237805, -169.626598, 0), App.Vector(107.237805, -185.626598, 0)), False)
sketch8.addConstraint(Sketcher.Constraint("Coincident", 0, 2, 1, 1))
sketch8.addConstraint(Sketcher.Constraint("Tangent", 1, 2, 2, 1))
sketch8.addConstraint(Sketcher.Constraint("Coincident", 2, 2, 3, 1))
sketch8.addConstraint(Sketcher.Constraint("Coincident", 3, 2, 4, 1))
sketch8.addConstraint(Sketcher.Constraint("Tangent", 4, 2, 5, 2))
sketch8.addConstraint(Sketcher.Constraint("Tangent", 5, 1, 6, 1))
sketch8.addConstraint(Sketcher.Constraint("Tangent", 6, 2, 7, 2))
sketch8.addConstraint(Sketcher.Constraint("Tangent", 7, 1, 8, 1))
sketch8.addConstraint(Sketcher.Constraint("Tangent", 8, 2, 9, 1))
sketch8.addConstraint(Sketcher.Constraint("Coincident", 9, 2, 10, 1))
sketch8.addConstraint(Sketcher.Constraint("Coincident", 10, 2, 11, 1))
sketch8.addConstraint(Sketcher.Constraint("Coincident", 11, 2, 0, 1))
sketch8.addConstraint(Sketcher.Constraint("Horizontal", 0))
sketch8.addConstraint(Sketcher.Constraint("Vertical", 2))
sketch8.addConstraint(Sketcher.Constraint("Horizontal", 3))
sketch8.addConstraint(Sketcher.Constraint("Vertical", 4))
sketch8.addConstraint(Sketcher.Constraint("Horizontal", 6))
sketch8.addConstraint(Sketcher.Constraint("Vertical", 8))
sketch8.addConstraint(Sketcher.Constraint("Horizontal", 10))
sketch8.addConstraint(Sketcher.Constraint("Vertical", 11))
sketch8.addConstraint(Sketcher.Constraint("Equal", 5, 7))
sketch8.addConstraint(Sketcher.Constraint("Equal", 1, 9))
sketch8.addConstraint(Sketcher.Constraint("Vertical", 1, 3, 9, 3))
sketch8.addConstraint(Sketcher.Constraint("Vertical", 0, 2, 9, 2))
sketch8.addConstraint(Sketcher.Constraint("Radius", 5, Q("0.02 in")))
sketch8.addConstraint(Sketcher.Constraint("Radius", 1, Q("0.09375 in")))
sketch8.addConstraint(Sketcher.Constraint("DistanceY", 4, 1, 4, 2, Q("0.84 in")))
sketch8.addConstraint(Sketcher.Constraint("DistanceY", 2, 2, 2, 1, Q("0.044 in")))
sketch8.addConstraint(Sketcher.Constraint("DistanceY", 8, 2, 8, 1, Q("0.024 in")))
sketch8.addConstraint(Sketcher.Constraint("DistanceY", 11, 2, 11, 1, Q("16 mm")))
sketch8.addConstraint(Sketcher.Constraint("DistanceX", 5, 3, 1, 3, Q("0.2425 in")))
sketch8.addConstraint(Sketcher.Constraint("DistanceX", 10, 2, 5, 3, Q("0.028 mm")))
sketch8.addConstraint(Sketcher.Constraint("DistanceX", -1, 1, 0, 2, Q("111.871442 mm")))
sketch8.addConstraint(Sketcher.Constraint("DistanceY", 1, 3, -1, 1, Q("187.430998 mm")))
pad3 = doc.addObject("PartDesign::Pad", "Pad002")
body.addObject(pad3)
pad3.Profile = sketch8
pad3.Type = "UpToFirst"

# Sketch on XY plane
sketch9 = doc.addObject("Sketcher::SketchObject", "Sketch008")
body.addObject(sketch9)
sketch9.AttachmentSupport = (doc.XY_Plane, [""])
sketch9.MapMode = "FlatFace"
sketch9.addGeometry(Part.LineSegment(App.Vector(114.979169, -185.626598, 0), App.Vector(159.496442, -185.626598, 0)), False)
sketch9.addGeometry(Part.ArcOfCircle(Part.Circle(App.Vector(161.050305, -187.430998, 0), App.Vector(0, 0, 1), 2.38125), math.radians(130.73347), math.radians(180)), False)
sketch9.addGeometry(Part.LineSegment(App.Vector(158.669055, -187.430998, 0), App.Vector(158.669055, -188.548598, 0)), False)
sketch9.addGeometry(Part.LineSegment(App.Vector(158.669055, -188.548598, 0), App.Vector(115.806555, -188.548598, 0)), False)
sketch9.addGeometry(Part.LineSegment(App.Vector(115.806555, -188.548598, 0), App.Vector(115.806555, -187.430998, 0)), False)
sketch9.addGeometry(Part.ArcOfCircle(Part.Circle(App.Vector(113.425305, -187.430998, 0), App.Vector(0, 0, 1), 2.38125), math.radians(0), math.radians(49.26653)), False)
sketch9.addConstraint(Sketcher.Constraint("Coincident", 0, 2, 1, 1))
sketch9.addConstraint(Sketcher.Constraint("Tangent", 1, 2, 2, 1))
sketch9.addConstraint(Sketcher.Constraint("Coincident", 2, 2, 3, 1))
sketch9.addConstraint(Sketcher.Constraint("Coincident", 3, 2, 4, 1))
sketch9.addConstraint(Sketcher.Constraint("Tangent", 4, 2, 5, 1))
sketch9.addConstraint(Sketcher.Constraint("Coincident", 5, 2, 0, 1))
sketch9.addConstraint(Sketcher.Constraint("Horizontal", 0))
sketch9.addConstraint(Sketcher.Constraint("Vertical", 2))
sketch9.addConstraint(Sketcher.Constraint("Horizontal", 3))
sketch9.addConstraint(Sketcher.Constraint("Vertical", 4))
sketch9.addConstraint(Sketcher.Constraint("Equal", 1, 5))
sketch9.addConstraint(Sketcher.Constraint("Horizontal", 1, 3, 5, 3))
sketch9.addConstraint(Sketcher.Constraint("Radius", 1, Q("0.09375 in")))
sketch9.addConstraint(Sketcher.Constraint("DistanceX", 3, 2, 3, 1, Q("1.6875 in")))
sketch9.addConstraint(Sketcher.Constraint("DistanceY", 2, 2, 2, 1, Q("0.044 in")))
sketch9.addConstraint(Sketcher.Constraint("DistanceY", 1, 3, 0, 2, Q("1.8044 mm")))
sketch9.addConstraint(Sketcher.Constraint("DistanceX", -1, 1, 0, 2, Q("159.496442 mm")))
sketch9.addConstraint(Sketcher.Constraint("DistanceY", 1, 3, -1, 1, Q("187.430998 mm")))
pad4 = doc.addObject("PartDesign::Pad", "Pad003")
body.addObject(pad4)
pad4.Profile = sketch9
pad4.Type = "UpToFirst"

# Sketch on XY plane
sketch10 = doc.addObject("Sketcher::SketchObject", "Sketch009")
body.addObject(sketch10)
sketch10.AttachmentSupport = (doc.XY_Plane, [""])
sketch10.MapMode = "FlatFace"
sketch10.addGeometry(Part.LineSegment(App.Vector(162.604169, -185.626598, 0), App.Vector(167.237805, -185.626598, 0)), False)
sketch10.addGeometry(Part.LineSegment(App.Vector(167.237805, -185.626598, 0), App.Vector(167.237805, -169.626598, 0)), False)
sketch10.addGeometry(Part.LineSegment(App.Vector(167.237805, -169.626598, 0), App.Vector(162.604169, -169.626598, 0)), False)
sketch10.addGeometry(Part.ArcOfCircle(Part.Circle(App.Vector(161.050305, -167.822198, 0), App.Vector(0, 0, 1), 2.38125), math.radians(-49.26653), math.radians(0)), False)
sketch10.addGeometry(Part.LineSegment(App.Vector(163.431555, -167.822198, 0), App.Vector(163.431555, -166.704598, 0)), False)
sketch10.addGeometry(Part.LineSegment(App.Vector(163.431555, -166.704598, 0), App.Vector(167.717805, -166.704598, 0)), False)
sketch10.addGeometry(Part.LineSegment(App.Vector(167.717805, -166.704598, 0), App.Vector(167.717805, -188.548598, 0)), False)
sketch10.addGeometry(Part.LineSegment(App.Vector(167.717805, -188.548598, 0), App.Vector(163.431555, -188.548598, 0)), False)
sketch10.addGeometry(Part.LineSegment(App.Vector(163.431555, -188.548598, 0), App.Vector(163.431555, -187.430998, 0)), False)
sketch10.addGeometry(Part.ArcOfCircle(Part.Circle(App.Vector(161.050305, -187.430998, 0), App.Vector(0, 0, 1), 2.38125), math.radians(0), math.radians(49.26653)), False)
sketch10.addConstraint(Sketcher.Constraint("Coincident", 0, 2, 1, 1))
sketch10.addConstraint(Sketcher.Constraint("Coincident", 1, 2, 2, 1))
sketch10.addConstraint(Sketcher.Constraint("Coincident", 2, 2, 3, 1))
sketch10.addConstraint(Sketcher.Constraint("Tangent", 3, 2, 4, 1))
sketch10.addConstraint(Sketcher.Constraint("Coincident", 4, 2, 5, 1))
sketch10.addConstraint(Sketcher.Constraint("Coincident", 5, 2, 6, 1))
sketch10.addConstraint(Sketcher.Constraint("Coincident", 6, 2, 7, 1))
sketch10.addConstraint(Sketcher.Constraint("Coincident", 7, 2, 8, 1))
sketch10.addConstraint(Sketcher.Constraint("Tangent", 8, 2, 9, 1))
sketch10.addConstraint(Sketcher.Constraint("Coincident", 9, 2, 0, 1))
sketch10.addConstraint(Sketcher.Constraint("Horizontal", 0))
sketch10.addConstraint(Sketcher.Constraint("Vertical", 1))
sketch10.addConstraint(Sketcher.Constraint("Horizontal", 2))
sketch10.addConstraint(Sketcher.Constraint("Vertical", 4))
sketch10.addConstraint(Sketcher.Constraint("Horizontal", 5))
sketch10.addConstraint(Sketcher.Constraint("Vertical", 6))
sketch10.addConstraint(Sketcher.Constraint("Horizontal", 7))
sketch10.addConstraint(Sketcher.Constraint("Vertical", 8))
sketch10.addConstraint(Sketcher.Constraint("Equal", 3, 9))
sketch10.addConstraint(Sketcher.Constraint("Vertical", 3, 3, 9, 3))
sketch10.addConstraint(Sketcher.Constraint("Vertical", 2, 2, 9, 2))
sketch10.addConstraint(Sketcher.Constraint("Equal", 4, 8))
sketch10.addConstraint(Sketcher.Constraint("Radius", 3, Q("0.09375 in")))
sketch10.addConstraint(Sketcher.Constraint("DistanceY", 6, 2, 6, 1, Q("0.86 in")))
sketch10.addConstraint(Sketcher.Constraint("DistanceY", 4, 1, 4, 2, Q("0.044 in")))
sketch10.addConstraint(Sketcher.Constraint("DistanceY", 1, 1, 1, 2, Q("16 mm")))
sketch10.addConstraint(Sketcher.Constraint("DistanceX", 3, 3, 5, 2, Q("0.2625 in")))
sketch10.addConstraint(Sketcher.Constraint("DistanceX", 9, 3, 0, 2, Q("6.1875 mm")))
sketch10.addConstraint(Sketcher.Constraint("DistanceX", -1, 1, 2, 2, Q("162.604169 mm")))
sketch10.addConstraint(Sketcher.Constraint("DistanceY", 3, 3, -1, 1, Q("167.822198 mm")))
pad5 = doc.addObject("PartDesign::Pad", "Pad004")
body.addObject(pad5)
pad5.Profile = sketch10
pad5.Type = "UpToFirst"

doc.recompute()
